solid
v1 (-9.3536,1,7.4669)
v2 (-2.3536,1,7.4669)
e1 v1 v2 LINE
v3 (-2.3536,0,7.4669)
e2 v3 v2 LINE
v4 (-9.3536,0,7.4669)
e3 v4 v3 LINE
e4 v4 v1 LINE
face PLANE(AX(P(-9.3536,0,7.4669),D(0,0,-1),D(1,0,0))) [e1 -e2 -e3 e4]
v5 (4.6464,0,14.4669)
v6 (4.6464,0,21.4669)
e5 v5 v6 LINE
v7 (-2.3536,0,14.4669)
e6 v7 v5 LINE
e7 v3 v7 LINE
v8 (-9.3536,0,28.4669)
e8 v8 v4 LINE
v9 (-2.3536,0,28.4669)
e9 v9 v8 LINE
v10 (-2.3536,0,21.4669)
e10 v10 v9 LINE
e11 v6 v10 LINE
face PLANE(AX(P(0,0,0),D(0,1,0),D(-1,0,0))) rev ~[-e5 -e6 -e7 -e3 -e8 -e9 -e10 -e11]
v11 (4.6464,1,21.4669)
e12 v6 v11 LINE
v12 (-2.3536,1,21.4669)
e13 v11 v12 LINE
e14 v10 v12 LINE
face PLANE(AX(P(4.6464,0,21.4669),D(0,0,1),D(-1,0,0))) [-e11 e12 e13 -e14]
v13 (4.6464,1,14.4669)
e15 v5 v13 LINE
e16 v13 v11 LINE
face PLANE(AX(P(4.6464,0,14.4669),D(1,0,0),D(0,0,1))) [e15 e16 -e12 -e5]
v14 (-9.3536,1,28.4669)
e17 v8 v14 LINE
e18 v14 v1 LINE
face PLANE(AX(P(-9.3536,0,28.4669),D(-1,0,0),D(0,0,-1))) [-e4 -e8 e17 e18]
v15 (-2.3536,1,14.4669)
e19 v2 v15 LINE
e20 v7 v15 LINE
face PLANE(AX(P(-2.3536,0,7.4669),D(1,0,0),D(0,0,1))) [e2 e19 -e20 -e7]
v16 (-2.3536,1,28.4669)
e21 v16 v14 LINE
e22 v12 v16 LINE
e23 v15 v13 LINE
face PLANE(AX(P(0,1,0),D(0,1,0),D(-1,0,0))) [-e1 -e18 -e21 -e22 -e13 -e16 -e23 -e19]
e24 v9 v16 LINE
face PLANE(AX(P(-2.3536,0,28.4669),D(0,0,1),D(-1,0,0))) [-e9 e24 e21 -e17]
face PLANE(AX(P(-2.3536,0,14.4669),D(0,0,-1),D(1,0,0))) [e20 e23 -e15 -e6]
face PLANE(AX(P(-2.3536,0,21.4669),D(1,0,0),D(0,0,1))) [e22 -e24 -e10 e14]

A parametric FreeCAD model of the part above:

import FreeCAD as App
import Part
import Sketcher
Q = App.Units.Quantity

doc = App.newDocument("Part")
body = doc.addObject("PartDesign::Body", "Body")

# Sketch on XZ plane
sketch1 = body.newObject("Sketcher::SketchObject", "Sketch")
sketch1.AttachmentSupport = (doc.getObject("XZ_Plane"), [""])
sketch1.MapMode = "FlatFace"
sketch1.addGeometry([
    Part.LineSegment(App.Vector(-2, 7, 0), App.Vector(-9, 7, 0)),  # 0
    Part.LineSegment(App.Vector(-9, 7, 0), App.Vector(-9, 28, 0)),  # 1
    Part.LineSegment(App.Vector(-9, 28, 0), App.Vector(-2, 28, 0)),  # 2
    Part.LineSegment(App.Vector(-2, 28, 0), App.Vector(-2, 21, 0)),  # 3
    Part.LineSegment(App.Vector(-2, 21, 0), App.Vector(5, 21, 0)),  # 4
    Part.LineSegment(App.Vector(5, 21, 0), App.Vector(5, 14, 0)),  # 5
    Part.LineSegment(App.Vector(5, 14, 0), App.Vector(-2, 14, 0)),  # 6
    Part.LineSegment(App.Vector(-2, 14, 0), App.Vector(-2, 7, 0)),  # 7
], False)
sketch1.addConstraint([
    Sketcher.Constraint("Coincident", 0, 2, 1, 1),
    Sketcher.Constraint("Coincident", 1, 2, 2, 1),
    Sketcher.Constraint("Coincident", 2, 2, 3, 1),
    Sketcher.Constraint("Coincident", 3, 2, 4, 1),
    Sketcher.Constraint("Coincident", 4, 2, 5, 1),
    Sketcher.Constraint("Coincident", 5, 2, 6, 1),
    Sketcher.Constraint("Coincident", 6, 2, 7, 1),
    Sketcher.Constraint("Coincident", 7, 2, 0, 1),
    Sketcher.Constraint("Horizontal", 0),
    Sketcher.Constraint("Vertical", 1),
    Sketcher.Constraint("Horizontal", 2),
    Sketcher.Constraint("Vertical", 3),
    Sketcher.Constraint("Horizontal", 4),
    Sketcher.Constraint("Vertical", 5),
    Sketcher.Constraint("Horizontal", 6),
    Sketcher.Constraint("Vertical", 7),
    Sketcher.Constraint("Vertical", 3, 2, 6, 2),
    Sketcher.Constraint("Equal", 2, 4),
    Sketcher.Constraint("Equal", 6, 3),
    Sketcher.Constraint("Equal", 3, 5),
    Sketcher.Constraint("Equal", 5, 7),
    Sketcher.Constraint("DistanceX", 0, 2, 0, 1, Q("7 mm")),
    Sketcher.Constraint("DistanceY", -1, 1, 0, 2, Q("7.467 mm")),
    Sketcher.Constraint("DistanceX", 0, 2, -1, 1, Q("9.3536 mm")),
])
pad1 = body.newObject("PartDesign::Pad", "Pad")
pad1.Profile = sketch1
pad1.Length = 1
pad1.Reversed = True

doc.recompute()
